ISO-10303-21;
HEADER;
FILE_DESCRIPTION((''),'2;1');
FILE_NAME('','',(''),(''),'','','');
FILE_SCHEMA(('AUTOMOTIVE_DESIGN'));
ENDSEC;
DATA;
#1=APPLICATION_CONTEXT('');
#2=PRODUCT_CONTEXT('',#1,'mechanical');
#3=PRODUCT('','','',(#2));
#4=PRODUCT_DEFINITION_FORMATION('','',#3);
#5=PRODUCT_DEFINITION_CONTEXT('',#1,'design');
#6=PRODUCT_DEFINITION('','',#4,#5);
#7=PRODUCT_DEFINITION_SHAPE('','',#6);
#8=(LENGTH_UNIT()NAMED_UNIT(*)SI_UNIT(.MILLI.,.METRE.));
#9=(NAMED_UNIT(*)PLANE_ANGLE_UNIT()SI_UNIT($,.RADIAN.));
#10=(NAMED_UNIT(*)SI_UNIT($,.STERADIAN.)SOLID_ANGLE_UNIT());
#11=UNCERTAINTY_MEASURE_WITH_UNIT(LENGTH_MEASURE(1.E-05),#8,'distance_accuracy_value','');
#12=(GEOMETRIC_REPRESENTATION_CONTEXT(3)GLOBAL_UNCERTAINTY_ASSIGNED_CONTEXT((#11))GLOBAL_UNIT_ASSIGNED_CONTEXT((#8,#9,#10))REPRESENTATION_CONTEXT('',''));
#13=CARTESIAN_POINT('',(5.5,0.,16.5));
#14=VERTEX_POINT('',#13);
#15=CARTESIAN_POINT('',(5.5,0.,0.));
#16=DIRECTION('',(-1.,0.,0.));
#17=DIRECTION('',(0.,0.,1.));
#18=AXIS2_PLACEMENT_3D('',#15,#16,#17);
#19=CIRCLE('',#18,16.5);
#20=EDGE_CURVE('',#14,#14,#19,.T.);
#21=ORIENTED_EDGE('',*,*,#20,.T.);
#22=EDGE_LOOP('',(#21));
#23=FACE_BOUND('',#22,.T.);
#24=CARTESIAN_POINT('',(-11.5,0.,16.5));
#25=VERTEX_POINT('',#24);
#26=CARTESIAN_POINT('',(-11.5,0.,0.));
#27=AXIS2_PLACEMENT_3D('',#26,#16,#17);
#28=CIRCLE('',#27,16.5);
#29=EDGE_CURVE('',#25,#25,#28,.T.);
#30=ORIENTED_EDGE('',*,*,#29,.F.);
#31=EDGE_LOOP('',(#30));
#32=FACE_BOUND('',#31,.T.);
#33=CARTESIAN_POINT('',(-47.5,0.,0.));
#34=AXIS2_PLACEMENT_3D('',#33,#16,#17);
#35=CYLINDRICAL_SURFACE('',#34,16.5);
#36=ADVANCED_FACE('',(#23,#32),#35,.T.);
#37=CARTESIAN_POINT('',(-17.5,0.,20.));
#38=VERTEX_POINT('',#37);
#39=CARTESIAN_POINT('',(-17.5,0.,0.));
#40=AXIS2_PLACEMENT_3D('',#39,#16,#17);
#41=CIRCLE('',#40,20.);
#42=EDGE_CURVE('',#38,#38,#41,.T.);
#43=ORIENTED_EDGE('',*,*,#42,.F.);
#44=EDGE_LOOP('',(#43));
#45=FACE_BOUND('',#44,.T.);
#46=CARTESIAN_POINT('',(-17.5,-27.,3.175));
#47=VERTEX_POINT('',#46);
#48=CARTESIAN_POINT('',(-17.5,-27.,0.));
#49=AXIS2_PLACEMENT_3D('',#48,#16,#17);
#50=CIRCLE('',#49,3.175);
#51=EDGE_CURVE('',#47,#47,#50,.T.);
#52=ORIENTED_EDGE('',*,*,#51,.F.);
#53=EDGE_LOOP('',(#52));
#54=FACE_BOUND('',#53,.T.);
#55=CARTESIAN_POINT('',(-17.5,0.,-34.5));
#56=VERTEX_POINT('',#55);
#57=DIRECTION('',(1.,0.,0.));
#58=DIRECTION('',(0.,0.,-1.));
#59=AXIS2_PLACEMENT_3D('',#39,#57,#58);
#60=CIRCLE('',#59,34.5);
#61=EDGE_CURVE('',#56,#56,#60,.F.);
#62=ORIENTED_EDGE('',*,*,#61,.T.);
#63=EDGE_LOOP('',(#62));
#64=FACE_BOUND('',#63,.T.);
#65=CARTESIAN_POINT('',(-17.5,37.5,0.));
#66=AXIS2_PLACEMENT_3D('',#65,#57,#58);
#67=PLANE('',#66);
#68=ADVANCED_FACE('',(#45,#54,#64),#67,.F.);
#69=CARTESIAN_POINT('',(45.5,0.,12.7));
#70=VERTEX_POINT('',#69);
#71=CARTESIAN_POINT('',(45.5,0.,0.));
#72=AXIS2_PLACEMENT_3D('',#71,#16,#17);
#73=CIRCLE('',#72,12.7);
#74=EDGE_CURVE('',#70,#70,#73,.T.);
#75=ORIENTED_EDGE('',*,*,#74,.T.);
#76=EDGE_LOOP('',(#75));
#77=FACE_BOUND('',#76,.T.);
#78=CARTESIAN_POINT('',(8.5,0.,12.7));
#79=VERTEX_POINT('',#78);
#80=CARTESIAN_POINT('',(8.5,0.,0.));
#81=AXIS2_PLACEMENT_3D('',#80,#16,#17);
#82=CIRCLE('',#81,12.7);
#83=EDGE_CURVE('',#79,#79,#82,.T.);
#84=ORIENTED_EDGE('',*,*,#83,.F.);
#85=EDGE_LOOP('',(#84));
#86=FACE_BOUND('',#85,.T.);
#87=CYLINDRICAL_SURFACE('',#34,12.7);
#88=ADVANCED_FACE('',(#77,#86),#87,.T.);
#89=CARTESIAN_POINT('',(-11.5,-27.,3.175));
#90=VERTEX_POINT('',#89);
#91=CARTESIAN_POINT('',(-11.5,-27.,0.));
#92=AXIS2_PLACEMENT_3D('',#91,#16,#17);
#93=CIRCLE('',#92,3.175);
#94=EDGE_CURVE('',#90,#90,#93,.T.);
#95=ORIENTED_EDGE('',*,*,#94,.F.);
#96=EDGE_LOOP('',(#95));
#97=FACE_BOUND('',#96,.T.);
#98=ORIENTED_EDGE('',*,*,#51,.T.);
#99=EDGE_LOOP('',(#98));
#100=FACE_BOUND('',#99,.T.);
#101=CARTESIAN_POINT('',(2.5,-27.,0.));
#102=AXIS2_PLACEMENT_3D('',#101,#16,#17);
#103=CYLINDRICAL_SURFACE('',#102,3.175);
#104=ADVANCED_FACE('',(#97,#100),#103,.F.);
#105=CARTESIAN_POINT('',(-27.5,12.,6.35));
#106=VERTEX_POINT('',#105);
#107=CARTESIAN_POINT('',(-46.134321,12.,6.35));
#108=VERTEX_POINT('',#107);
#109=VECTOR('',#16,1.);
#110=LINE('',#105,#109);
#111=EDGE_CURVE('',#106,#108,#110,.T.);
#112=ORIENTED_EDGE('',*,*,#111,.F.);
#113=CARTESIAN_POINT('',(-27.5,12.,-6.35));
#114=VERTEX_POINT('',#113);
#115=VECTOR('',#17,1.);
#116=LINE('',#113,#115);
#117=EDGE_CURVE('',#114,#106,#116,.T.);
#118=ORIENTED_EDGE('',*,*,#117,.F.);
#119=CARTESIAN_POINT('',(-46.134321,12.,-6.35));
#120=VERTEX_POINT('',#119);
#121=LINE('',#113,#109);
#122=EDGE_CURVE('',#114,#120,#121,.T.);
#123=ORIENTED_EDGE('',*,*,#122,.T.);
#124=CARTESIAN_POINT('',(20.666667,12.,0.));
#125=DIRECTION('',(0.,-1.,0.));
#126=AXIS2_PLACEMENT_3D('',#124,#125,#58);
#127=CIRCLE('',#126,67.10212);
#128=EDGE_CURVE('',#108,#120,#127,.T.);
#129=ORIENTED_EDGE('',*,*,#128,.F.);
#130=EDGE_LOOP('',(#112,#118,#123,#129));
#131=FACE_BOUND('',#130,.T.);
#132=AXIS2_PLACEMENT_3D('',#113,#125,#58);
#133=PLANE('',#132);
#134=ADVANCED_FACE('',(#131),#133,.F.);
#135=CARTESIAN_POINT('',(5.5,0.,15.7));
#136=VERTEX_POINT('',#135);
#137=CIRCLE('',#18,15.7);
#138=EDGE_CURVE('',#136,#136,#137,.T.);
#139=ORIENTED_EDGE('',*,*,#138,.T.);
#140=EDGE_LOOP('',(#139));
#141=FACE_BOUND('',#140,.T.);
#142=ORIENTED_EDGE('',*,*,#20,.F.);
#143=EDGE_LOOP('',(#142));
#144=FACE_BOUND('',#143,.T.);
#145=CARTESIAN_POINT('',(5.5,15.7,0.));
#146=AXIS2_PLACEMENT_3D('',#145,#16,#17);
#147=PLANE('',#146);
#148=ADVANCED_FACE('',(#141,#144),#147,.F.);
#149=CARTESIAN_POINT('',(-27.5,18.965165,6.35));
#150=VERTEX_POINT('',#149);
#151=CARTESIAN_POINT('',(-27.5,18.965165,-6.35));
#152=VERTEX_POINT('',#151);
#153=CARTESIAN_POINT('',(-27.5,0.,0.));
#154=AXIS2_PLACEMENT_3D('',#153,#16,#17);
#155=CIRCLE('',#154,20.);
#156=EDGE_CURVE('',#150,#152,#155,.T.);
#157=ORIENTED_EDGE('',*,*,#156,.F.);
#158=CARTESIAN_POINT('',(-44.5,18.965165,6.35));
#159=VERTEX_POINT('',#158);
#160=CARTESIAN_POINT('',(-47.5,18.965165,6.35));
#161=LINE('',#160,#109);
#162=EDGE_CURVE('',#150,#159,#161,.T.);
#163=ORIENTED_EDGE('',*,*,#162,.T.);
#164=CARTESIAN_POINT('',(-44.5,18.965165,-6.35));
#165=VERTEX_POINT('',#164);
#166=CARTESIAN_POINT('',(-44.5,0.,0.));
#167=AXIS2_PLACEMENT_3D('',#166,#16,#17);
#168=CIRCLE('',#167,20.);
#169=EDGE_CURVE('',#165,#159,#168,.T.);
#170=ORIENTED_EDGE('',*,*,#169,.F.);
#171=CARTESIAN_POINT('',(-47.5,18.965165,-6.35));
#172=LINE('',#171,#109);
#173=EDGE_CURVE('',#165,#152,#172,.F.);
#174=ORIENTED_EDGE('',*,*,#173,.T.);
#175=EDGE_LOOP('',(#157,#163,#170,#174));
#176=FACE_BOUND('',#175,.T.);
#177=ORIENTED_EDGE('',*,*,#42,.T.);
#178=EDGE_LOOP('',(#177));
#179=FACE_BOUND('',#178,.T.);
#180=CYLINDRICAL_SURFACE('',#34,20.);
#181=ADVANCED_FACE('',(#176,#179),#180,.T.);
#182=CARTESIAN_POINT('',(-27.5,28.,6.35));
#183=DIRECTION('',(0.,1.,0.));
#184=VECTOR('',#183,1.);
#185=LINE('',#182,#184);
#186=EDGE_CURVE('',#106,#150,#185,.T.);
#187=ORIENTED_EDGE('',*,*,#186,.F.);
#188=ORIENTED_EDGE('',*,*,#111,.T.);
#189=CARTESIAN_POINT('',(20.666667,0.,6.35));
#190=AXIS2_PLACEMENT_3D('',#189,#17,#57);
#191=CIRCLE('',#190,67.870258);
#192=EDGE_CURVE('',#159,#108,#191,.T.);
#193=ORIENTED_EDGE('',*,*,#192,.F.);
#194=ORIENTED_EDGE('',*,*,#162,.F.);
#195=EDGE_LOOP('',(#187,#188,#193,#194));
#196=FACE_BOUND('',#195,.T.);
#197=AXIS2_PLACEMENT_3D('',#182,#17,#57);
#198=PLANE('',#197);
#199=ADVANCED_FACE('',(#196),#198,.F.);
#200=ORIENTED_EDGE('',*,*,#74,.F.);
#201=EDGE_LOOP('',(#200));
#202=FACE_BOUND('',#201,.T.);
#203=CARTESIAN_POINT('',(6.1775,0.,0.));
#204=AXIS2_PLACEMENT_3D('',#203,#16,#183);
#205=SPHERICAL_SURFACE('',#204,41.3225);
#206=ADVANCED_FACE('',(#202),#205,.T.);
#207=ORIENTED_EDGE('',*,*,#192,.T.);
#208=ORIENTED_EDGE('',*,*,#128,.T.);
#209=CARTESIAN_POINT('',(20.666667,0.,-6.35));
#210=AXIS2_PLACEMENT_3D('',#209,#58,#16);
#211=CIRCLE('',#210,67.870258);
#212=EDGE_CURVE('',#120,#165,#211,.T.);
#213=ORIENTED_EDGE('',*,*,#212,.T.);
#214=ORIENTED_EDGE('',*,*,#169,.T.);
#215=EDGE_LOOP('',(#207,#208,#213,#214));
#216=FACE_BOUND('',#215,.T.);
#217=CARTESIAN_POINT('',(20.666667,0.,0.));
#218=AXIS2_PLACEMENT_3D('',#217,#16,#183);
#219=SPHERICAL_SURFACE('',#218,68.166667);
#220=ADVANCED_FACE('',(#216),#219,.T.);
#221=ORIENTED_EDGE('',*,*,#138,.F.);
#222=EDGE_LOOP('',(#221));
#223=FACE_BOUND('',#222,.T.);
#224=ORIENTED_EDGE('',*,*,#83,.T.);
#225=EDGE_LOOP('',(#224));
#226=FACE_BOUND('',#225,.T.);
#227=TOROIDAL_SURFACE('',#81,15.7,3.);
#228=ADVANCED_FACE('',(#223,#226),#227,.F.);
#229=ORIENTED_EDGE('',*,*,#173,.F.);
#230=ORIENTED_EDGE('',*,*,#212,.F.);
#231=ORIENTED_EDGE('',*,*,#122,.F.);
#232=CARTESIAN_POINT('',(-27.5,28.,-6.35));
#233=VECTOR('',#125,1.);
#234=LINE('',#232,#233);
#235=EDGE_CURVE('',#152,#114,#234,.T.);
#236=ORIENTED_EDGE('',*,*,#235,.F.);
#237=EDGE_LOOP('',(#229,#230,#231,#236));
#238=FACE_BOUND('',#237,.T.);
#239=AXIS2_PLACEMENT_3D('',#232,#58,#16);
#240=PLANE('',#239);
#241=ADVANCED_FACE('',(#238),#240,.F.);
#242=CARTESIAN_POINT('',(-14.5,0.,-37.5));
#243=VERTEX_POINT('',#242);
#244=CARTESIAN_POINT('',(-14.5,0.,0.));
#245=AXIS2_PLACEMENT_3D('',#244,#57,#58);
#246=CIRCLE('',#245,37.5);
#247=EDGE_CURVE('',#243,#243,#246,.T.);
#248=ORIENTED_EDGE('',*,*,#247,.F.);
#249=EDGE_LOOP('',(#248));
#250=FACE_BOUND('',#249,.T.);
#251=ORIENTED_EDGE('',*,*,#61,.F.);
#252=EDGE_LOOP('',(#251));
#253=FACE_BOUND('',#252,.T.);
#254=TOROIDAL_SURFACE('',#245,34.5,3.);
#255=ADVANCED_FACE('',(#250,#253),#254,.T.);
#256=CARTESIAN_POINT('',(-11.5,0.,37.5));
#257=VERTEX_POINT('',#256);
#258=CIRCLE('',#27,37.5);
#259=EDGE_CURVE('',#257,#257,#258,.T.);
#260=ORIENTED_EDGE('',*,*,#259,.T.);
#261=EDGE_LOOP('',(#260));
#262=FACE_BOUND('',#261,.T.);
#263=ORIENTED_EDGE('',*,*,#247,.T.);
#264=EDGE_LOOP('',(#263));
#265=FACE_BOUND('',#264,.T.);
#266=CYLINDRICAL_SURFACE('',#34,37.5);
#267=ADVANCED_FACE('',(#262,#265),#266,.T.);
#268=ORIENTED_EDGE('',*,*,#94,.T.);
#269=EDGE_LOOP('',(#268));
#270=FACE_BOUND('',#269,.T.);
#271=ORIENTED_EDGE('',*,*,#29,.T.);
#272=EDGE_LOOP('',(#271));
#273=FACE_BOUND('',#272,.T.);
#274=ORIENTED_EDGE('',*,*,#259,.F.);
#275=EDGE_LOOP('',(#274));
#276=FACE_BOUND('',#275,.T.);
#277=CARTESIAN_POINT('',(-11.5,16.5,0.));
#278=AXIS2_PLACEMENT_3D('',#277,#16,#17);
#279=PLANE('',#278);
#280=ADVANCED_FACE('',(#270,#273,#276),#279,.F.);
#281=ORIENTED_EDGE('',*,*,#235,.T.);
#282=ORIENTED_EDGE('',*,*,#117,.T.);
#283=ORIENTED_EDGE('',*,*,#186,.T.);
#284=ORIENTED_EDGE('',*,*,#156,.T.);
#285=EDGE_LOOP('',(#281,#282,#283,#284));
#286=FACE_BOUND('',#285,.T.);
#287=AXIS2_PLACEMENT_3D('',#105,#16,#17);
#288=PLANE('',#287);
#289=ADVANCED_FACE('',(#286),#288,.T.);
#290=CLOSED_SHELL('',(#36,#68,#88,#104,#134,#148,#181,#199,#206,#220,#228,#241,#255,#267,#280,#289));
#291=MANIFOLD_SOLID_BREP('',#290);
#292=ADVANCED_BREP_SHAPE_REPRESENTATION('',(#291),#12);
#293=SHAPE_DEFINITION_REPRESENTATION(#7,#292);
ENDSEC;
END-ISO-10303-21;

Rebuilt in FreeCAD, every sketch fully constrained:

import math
import FreeCAD as App
import Part
import Sketcher

V = App.Vector


def edges_at(feature, points):
    """Names of the edges that pass closest to the given points."""
    edges = feature.Shape.Edges
    near = lambda p: min(range(len(edges)), key=lambda i: edges[i].distToShape(Part.Vertex(*p))[0])
    return sorted({f"Edge{near(p) + 1}" for p in points})

doc = App.newDocument("Part")
body = doc.addObject("PartDesign::Body", "Body")

sketch1 = doc.addObject("Sketcher::SketchObject", "Sketch")
body.addObject(sketch1)
sketch1.AttachmentSupport = (doc.XY_Plane, [""])
sketch1.MapMode = "FlatFace"
sketch1.addGeometry([
    Part.LineSegment(V(45.5, 12.7, 0), V(8.5, 12.7, 0)),
    Part.ArcOfCircle(Part.Circle(V(8.5, 15.7, 0), V(0, 0, 1), 3), math.radians(180), math.radians(270)),
    Part.LineSegment(V(5.5, 15.7, 0), V(5.5, 16.5, 0)),
    Part.LineSegment(V(5.5, 16.5, 0), V(-11.5, 16.5, 0)),
    Part.LineSegment(V(-11.5, 16.5, 0), V(-11.5, 37.5, 0)),
    Part.LineSegment(V(-11.5, 37.5, 0), V(-17.5, 37.5, 0)),
    Part.LineSegment(V(-17.5, 37.5, 0), V(-17.5, 20, 0)),
    Part.LineSegment(V(-17.5, 20, 0), V(-44.5, 20, 0)),
    Part.ArcOfCircle(Part.Circle(V(20.7, 0, 0), V(0, 0, 1), 68.2), math.radians(162.94), math.radians(180)),
    Part.LineSegment(V(-47.5, 0, 0), V(47.5, 0, 0)),
    Part.ArcOfCircle(Part.Circle(V(6.2, 0, 0), V(0, 0, 1), 41.3), math.radians(0), math.radians(17.9)),
], False)
sketch1.addConstraint([
    Sketcher.Constraint("Tangent", 0, 2, 1, 2),
    Sketcher.Constraint("Tangent", 1, 1, 2, 1),
    Sketcher.Constraint("Coincident", 2, 2, 3, 1),
    Sketcher.Constraint("Coincident", 3, 2, 4, 1),
    Sketcher.Constraint("Coincident", 4, 2, 5, 1),
    Sketcher.Constraint("Coincident", 5, 2, 6, 1),
    Sketcher.Constraint("Coincident", 6, 2, 7, 1),
    Sketcher.Constraint("Coincident", 7, 2, 8, 1),
    Sketcher.Constraint("Coincident", 8, 2, 9, 1),
    Sketcher.Constraint("Coincident", 9, 2, 10, 1),
    Sketcher.Constraint("Coincident", 10, 2, 0, 1),
    Sketcher.Constraint("Horizontal", 0),
    Sketcher.Constraint("Vertical", 2),
    Sketcher.Constraint("Horizontal", 3),
    Sketcher.Constraint("Vertical", 4),
    Sketcher.Constraint("Horizontal", 5),
    Sketcher.Constraint("Vertical", 6),
    Sketcher.Constraint("Horizontal", 7),
    Sketcher.Constraint("Horizontal", 9),
    Sketcher.Constraint("Symmetric", 8, 2, 9, 2, -1, 1),
    Sketcher.Constraint("PointOnObject", 8, 3, -1),
    Sketcher.Constraint("PointOnObject", 10, 3, -1),
    Sketcher.Constraint("Radius", 1, 3.0),
    Sketcher.Constraint("DistanceX", 0, 2, 0, 1, 37.0),
    Sketcher.Constraint("DistanceX", 3, 2, 3, 1, 17.0),
    Sketcher.Constraint("DistanceX", 5, 2, 5, 1, 6.0),
    Sketcher.Constraint("DistanceX", 7, 2, 7, 1, 27.0),
    Sketcher.Constraint("DistanceX", 9, 1, 9, 2, 95.0),
    Sketcher.Constraint("DistanceY", 4, 1, 4, 2, 21.0),
    Sketcher.Constraint("DistanceY", 2, 1, 2, 2, 0.8),
    Sketcher.Constraint("DistanceY", 6, 2, 6, 1, 17.5),
    Sketcher.Constraint("DistanceY", -1, 1, 6, 2, 20.0),
    Sketcher.Constraint("DistanceX", 8, 2, 7, 2, 3.0),
])
revolution = doc.addObject("PartDesign::Revolution", "Revolution")
body.addObject(revolution)
revolution.Profile = sketch1
revolution.ReferenceAxis = (sketch1, ["H_Axis"])
revolution.Angle = 360
doc.recompute()

fillet = doc.addObject("PartDesign::Fillet", "Fillet")
body.addObject(fillet)
fillet.Base = (revolution, edges_at(revolution, [(-17.5, 0, -37.5)]))
fillet.Radius = 3

sketch2 = doc.addObject("Sketcher::SketchObject", "Sketch001")
body.addObject(sketch2)
sketch2.AttachmentSupport = (doc.YZ_Plane, [""])
sketch2.MapMode = "FlatFace"
sketch2.AttachmentOffset = App.Placement(V(0, 0, -47.5), App.Rotation())
sketch2.addGeometry([
    Part.LineSegment(V(28, -6, 0), V(12, -6, 0)),
    Part.LineSegment(V(12, -6, 0), V(12, 6, 0)),
    Part.LineSegment(V(12, 6, 0), V(28, 6, 0)),
    Part.LineSegment(V(28, 6, 0), V(28, -6, 0)),
], False)
sketch2.addConstraint([
    Sketcher.Constraint("Coincident", 0, 2, 1, 1),
    Sketcher.Constraint("Coincident", 1, 2, 2, 1),
    Sketcher.Constraint("Coincident", 2, 2, 3, 1),
    Sketcher.Constraint("Coincident", 3, 2, 0, 1),
    Sketcher.Constraint("Horizontal", 0),
    Sketcher.Constraint("Vertical", 1),
    Sketcher.Constraint("Horizontal", 2),
    Sketcher.Constraint("Vertical", 3),
    Sketcher.Constraint("DistanceX", 0, 2, 0, 1, 16.0),
    Sketcher.Constraint("DistanceY", 1, 1, 1, 2, 12.7),
    Sketcher.Constraint("DistanceX", -1, 1, 0, 2, 12.0),
    Sketcher.Constraint("DistanceY", 0, 2, -1, 1, 6.35),
])
pocket1 = doc.addObject("PartDesign::Pocket", "Pocket")
body.addObject(pocket1)
pocket1.Profile = sketch2
pocket1.Length = 20
pocket1.Reversed = True

sketch3 = doc.addObject("Sketcher::SketchObject", "Sketch002")
body.addObject(sketch3)
sketch3.AttachmentSupport = (doc.YZ_Plane, [""])
sketch3.MapMode = "FlatFace"
sketch3.AttachmentOffset = App.Placement(V(0, 0, -17.5), App.Rotation())
sketch3.addGeometry(Part.Circle(V(-27, 0, 0), V(0, 0, 1), 3.2), False)
sketch3.addConstraint([
    Sketcher.Constraint("PointOnObject", 0, 3, -1),
    Sketcher.Constraint("Diameter", 0, 6.35),
    Sketcher.Constraint("DistanceX", 0, 3, -1, 1, 27.0),
])
pocket2 = doc.addObject("PartDesign::Pocket", "Pocket001")
body.addObject(pocket2)
pocket2.Profile = sketch3
pocket2.Length = 20
pocket2.Reversed = True

doc.recompute()
